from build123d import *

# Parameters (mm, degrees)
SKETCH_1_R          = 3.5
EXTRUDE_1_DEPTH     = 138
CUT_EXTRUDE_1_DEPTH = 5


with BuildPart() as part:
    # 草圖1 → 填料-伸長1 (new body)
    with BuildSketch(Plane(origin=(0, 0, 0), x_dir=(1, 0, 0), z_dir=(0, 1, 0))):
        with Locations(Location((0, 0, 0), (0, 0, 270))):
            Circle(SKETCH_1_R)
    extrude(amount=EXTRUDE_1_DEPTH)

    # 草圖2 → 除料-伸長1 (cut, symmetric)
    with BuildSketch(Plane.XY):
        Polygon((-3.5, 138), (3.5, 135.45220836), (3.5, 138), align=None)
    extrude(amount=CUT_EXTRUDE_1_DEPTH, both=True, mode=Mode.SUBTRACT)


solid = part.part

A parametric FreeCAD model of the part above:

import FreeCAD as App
import Part
import Sketcher

V = App.Vector
Q = App.Units.Quantity


def add_polygon(sketch, points):
    """Adds a closed chain of lines whose ends are joined by coincident constraints."""
    first, n = sketch.GeometryCount, len(points)
    for a, b in zip(points, points[1:] + points[:1]):
        sketch.addGeometry(Part.LineSegment(App.Vector(*a, 0), App.Vector(*b, 0)), False)
    for i in range(n):
        sketch.addConstraint(Sketcher.Constraint("Coincident", first + i, 2, first + (i + 1) % n, 1))

doc = App.newDocument("Part")
params = doc.addObject("Spreadsheet::Sheet", "Params")
for row, (alias, value) in enumerate([
    ("sketch1_diameter", "7 mm"),
    ("pad1_length", "138 mm"),
    ("sketch2_width", "7 mm"),
    ("pocket1_length", "10 mm"),
], start=1):
    params.set(f"A{row}", alias)
    params.set(f"B{row}", "=" + value)
    params.setAlias(f"B{row}", alias)

body = doc.addObject("PartDesign::Body", "Body")

sketch1 = body.newObject("Sketcher::SketchObject", "Sketch")
sketch1.AttachmentSupport = (doc.getObject("XZ_Plane"), [""])
sketch1.MapMode = "FlatFace"
sketch1.addGeometry(Part.Circle(V(0, 0, 0), V(0, 0, 1), 3.5), False)
sketch1.addConstraint([
    Sketcher.Constraint("Coincident", 0, 3, -1, 1),
    Sketcher.Constraint("Diameter", 0, 7.0),
])
sketch1.setExpression("Constraints[1]", "Params.sketch1_diameter")
pad1 = body.newObject("PartDesign::Pad", "Pad")
pad1.Profile = sketch1
pad1.setExpression("Length", "Params.pad1_length")
pad1.Reversed = True

sketch2 = body.newObject("Sketcher::SketchObject", "Sketch001")
sketch2.AttachmentSupport = (doc.getObject("XY_Plane"), [""])
sketch2.MapMode = "FlatFace"
add_polygon(sketch2, [(-3.5, 138), (3.5, 135.5), (3.5, 138)])
sketch2.addConstraint([
    Sketcher.Constraint("Vertical", 1),
    Sketcher.Constraint("Horizontal", 2),
    Sketcher.Constraint("DistanceX", 2, 2, 2, 1, 7.0),
    Sketcher.Constraint("Angle", 0, Q("-20 deg")),
    Sketcher.Constraint("DistanceY", -1, 1, 1, 2, 138.0),
    Sketcher.Constraint("DistanceX", -1, 1, 0, 2, 3.5),
])
sketch2.setExpression("Constraints[5]", "Params.sketch2_width")
pocket1 = body.newObject("PartDesign::Pocket", "Pocket")
pocket1.Profile = sketch2
pocket1.setExpression("Length", "Params.pocket1_length")
pocket1.Midplane = True

doc.recompute()
